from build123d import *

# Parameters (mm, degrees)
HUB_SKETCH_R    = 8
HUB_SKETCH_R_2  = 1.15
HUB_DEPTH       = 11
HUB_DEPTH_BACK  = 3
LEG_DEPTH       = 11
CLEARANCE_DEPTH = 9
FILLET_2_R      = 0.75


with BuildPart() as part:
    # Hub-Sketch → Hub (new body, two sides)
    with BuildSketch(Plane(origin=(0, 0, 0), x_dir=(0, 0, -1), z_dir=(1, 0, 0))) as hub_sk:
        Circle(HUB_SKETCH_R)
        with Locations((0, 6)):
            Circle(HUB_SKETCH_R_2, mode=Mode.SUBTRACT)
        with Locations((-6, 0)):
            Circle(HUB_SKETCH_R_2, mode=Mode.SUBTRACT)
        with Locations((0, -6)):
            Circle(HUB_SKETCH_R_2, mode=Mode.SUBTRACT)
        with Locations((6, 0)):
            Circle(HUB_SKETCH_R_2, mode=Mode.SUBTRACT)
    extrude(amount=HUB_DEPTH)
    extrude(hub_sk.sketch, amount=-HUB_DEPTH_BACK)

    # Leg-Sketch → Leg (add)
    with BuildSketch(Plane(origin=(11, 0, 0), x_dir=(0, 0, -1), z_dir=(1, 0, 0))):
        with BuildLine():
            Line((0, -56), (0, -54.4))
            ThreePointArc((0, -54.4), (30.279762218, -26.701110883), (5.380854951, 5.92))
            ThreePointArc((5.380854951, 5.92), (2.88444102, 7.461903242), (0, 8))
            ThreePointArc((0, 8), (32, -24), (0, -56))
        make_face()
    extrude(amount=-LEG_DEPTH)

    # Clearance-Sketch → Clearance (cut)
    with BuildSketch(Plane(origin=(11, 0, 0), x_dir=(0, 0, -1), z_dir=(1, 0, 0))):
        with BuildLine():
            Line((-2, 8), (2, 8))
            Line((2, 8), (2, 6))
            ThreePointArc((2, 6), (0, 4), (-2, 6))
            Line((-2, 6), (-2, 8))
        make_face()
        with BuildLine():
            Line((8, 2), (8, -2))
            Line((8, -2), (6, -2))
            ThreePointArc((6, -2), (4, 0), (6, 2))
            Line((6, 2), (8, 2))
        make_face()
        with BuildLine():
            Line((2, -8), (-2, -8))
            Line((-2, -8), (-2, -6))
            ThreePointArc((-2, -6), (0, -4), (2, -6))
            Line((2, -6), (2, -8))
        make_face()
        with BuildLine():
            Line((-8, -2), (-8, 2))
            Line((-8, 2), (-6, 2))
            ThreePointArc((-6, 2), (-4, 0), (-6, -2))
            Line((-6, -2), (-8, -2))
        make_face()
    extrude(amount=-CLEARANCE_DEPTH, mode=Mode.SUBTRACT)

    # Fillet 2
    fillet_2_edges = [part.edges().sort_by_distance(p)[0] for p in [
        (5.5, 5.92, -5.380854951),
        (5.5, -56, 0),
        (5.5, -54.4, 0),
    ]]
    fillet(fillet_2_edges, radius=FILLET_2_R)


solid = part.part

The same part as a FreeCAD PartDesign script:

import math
import FreeCAD as App
import Part
import Sketcher
from FreeCAD import Vector
Q = App.Units.Quantity


def edges_at(feature, points):
    """Names of the edges that pass closest to the given points."""
    edges = feature.Shape.Edges
    near = lambda p: min(range(len(edges)), key=lambda i: edges[i].distToShape(Part.Vertex(*p))[0])
    return sorted({f"Edge{near(p) + 1}" for p in points})

doc = App.newDocument("Part")
params = doc.addObject("Spreadsheet::Sheet", "Params")
for row, (alias, value) in enumerate([
    ("sketch1_diameter", "16 mm"),
    ("sketch1_diameter2", "2.3 mm"),
    ("pad1_length", "11 mm"),
    ("pad1_length2", "3 mm"),
    ("sketch2_radius", "32 mm"),
    ("sketch2_radius2", "8 mm"),
    ("sketch2_radius3", "30.4 mm"),
    ("pad2_length", "11 mm"),
    ("sketch3_radius", "2 mm"),
    ("sketch3_width", "2 mm"),
    ("pocket1_length", "9 mm"),
    ("fillet_radius", "0.75 mm"),
], start=1):
    params.set(f"A{row}", alias)
    params.set(f"B{row}", "=" + value)
    params.setAlias(f"B{row}", alias)

body = doc.addObject("PartDesign::Body", "Body")

# Sketch on YZ plane
sketch1 = body.newObject("Sketcher::SketchObject", "Sketch")
sketch1.AttachmentSupport = (doc.getObject("YZ_Plane"), [""])
sketch1.MapMode = "FlatFace"
sketch1.addGeometry(Part.Circle(Vector(0, 0, 0), Vector(0, 0, 1), 8), False)
sketch1.addGeometry(Part.Circle(Vector(-6, 0, 0), Vector(0, 0, 1), 1.15), False)
sketch1.addGeometry(Part.Circle(Vector(0, 6, 0), Vector(0, 0, 1), 1.15), False)
sketch1.addGeometry(Part.Circle(Vector(6, 0, 0), Vector(0, 0, 1), 1.15), False)
sketch1.addGeometry(Part.Circle(Vector(0, -6, 0), Vector(0, 0, 1), 1.15), False)
sketch1.addConstraint(Sketcher.Constraint("Coincident", 0, 3, -1, 1))
sketch1.addConstraint(Sketcher.Constraint("Equal", 1, 2))
sketch1.addConstraint(Sketcher.Constraint("Equal", 2, 3))
sketch1.addConstraint(Sketcher.Constraint("Equal", 3, 4))
sketch1.addConstraint(Sketcher.Constraint("Symmetric", 1, 3, 3, 3, -1, 1))
sketch1.addConstraint(Sketcher.Constraint("Symmetric", 2, 3, 4, 3, -1, 1))
sketch1.addConstraint(Sketcher.Constraint("PointOnObject", 1, 3, -1))
sketch1.addConstraint(Sketcher.Constraint("PointOnObject", 2, 3, -2))
sketch1.addConstraint(Sketcher.Constraint("Diameter", 0, Q("16 mm")))
sketch1.addConstraint(Sketcher.Constraint("Diameter", 1, Q("2.3 mm")))
sketch1.addConstraint(Sketcher.Constraint("DistanceX", 1, 3, -1, 1, Q("6 mm")))
sketch1.addConstraint(Sketcher.Constraint("DistanceY", -1, 1, 2, 3, Q("6 mm")))
sketch1.setExpression("Constraints[8]", "Params.sketch1_diameter")
sketch1.setExpression("Constraints[9]", "Params.sketch1_diameter2")
pad1 = body.newObject("PartDesign::Pad", "Pad")
pad1.Profile = sketch1
pad1.Type = "TwoLengths"
pad1.setExpression("Length", "Params.pad1_length")
pad1.setExpression("Length2", "Params.pad1_length2")

# Sketch on YZ plane
sketch2 = body.newObject("Sketcher::SketchObject", "Sketch001")
sketch2.AttachmentSupport = (doc.getObject("YZ_Plane"), [""])
sketch2.MapMode = "FlatFace"
sketch2.AttachmentOffset = App.Placement(Vector(0, 0, 11), App.Rotation())
sketch2.addGeometry(Part.LineSegment(Vector(-54.4, 0, 0), Vector(-56, 0, 0)), False)
sketch2.addGeometry(Part.ArcOfCircle(Part.Circle(Vector(-24, 0, 0), Vector(0, 0, 1), 32), math.radians(180), math.radians(360)), False)
sketch2.addGeometry(Part.ArcOfCircle(Part.Circle(Vector(0, 0, 0), Vector(0, 0, 1), 8), math.radians(-42.268584), math.radians(0)), False)
sketch2.addGeometry(Part.ArcOfCircle(Part.Circle(Vector(-24, 0, 0), Vector(0, 0, 1), 30.4), math.radians(180), math.radians(349.804828)), False)
sketch2.addConstraint(Sketcher.Constraint("Coincident", 0, 2, 1, 1))
sketch2.addConstraint(Sketcher.Constraint("Tangent", 1, 2, 2, 2))
sketch2.addConstraint(Sketcher.Constraint("Coincident", 2, 1, 3, 2))
sketch2.addConstraint(Sketcher.Constraint("Coincident", 3, 1, 0, 1))
sketch2.addConstraint(Sketcher.Constraint("Horizontal", 0))
sketch2.addConstraint(Sketcher.Constraint("Coincident", 2, 3, -1, 1))
sketch2.addConstraint(Sketcher.Constraint("Coincident", 3, 3, 1, 3))
sketch2.addConstraint(Sketcher.Constraint("PointOnObject", 1, 3, -1))
sketch2.addConstraint(Sketcher.Constraint("PointOnObject", 0, 2, -1))
sketch2.addConstraint(Sketcher.Constraint("Radius", 1, Q("32 mm")))
sketch2.addConstraint(Sketcher.Constraint("Radius", 2, Q("8 mm")))
sketch2.addConstraint(Sketcher.Constraint("Radius", 3, Q("30.4 mm")))
sketch2.setExpression("Constraints[9]", "Params.sketch2_radius")
sketch2.setExpression("Constraints[10]", "Params.sketch2_radius2")
sketch2.setExpression("Constraints[11]", "Params.sketch2_radius3")
pad2 = body.newObject("PartDesign::Pad", "Pad001")
pad2.Profile = sketch2
pad2.setExpression("Length", "Params.pad2_length")
pad2.Reversed = True

# Sketch on YZ plane
sketch3 = body.newObject("Sketcher::SketchObject", "Sketch002")
sketch3.AttachmentSupport = (doc.getObject("YZ_Plane"), [""])
sketch3.MapMode = "FlatFace"
sketch3.AttachmentOffset = App.Placement(Vector(0, 0, 11), App.Rotation())
sketch3.addGeometry(Part.LineSegment(Vector(8, -2, 0), Vector(8, 2, 0)), False)
sketch3.addGeometry(Part.LineSegment(Vector(8, 2, 0), Vector(6, 2, 0)), False)
sketch3.addGeometry(Part.ArcOfCircle(Part.Circle(Vector(6, 0, 0), Vector(0, 0, 1), 2), math.radians(90), math.radians(270)), False)
sketch3.addGeometry(Part.LineSegment(Vector(6, -2, 0), Vector(8, -2, 0)), False)
sketch3.addGeometry(Part.LineSegment(Vector(-2, -8, 0), Vector(2, -8, 0)), False)
sketch3.addGeometry(Part.LineSegment(Vector(2, -8, 0), Vector(2, -6, 0)), False)
sketch3.addGeometry(Part.ArcOfCircle(Part.Circle(Vector(0, -6, 0), Vector(0, 0, 1), 2), math.radians(0), math.radians(180)), False)
sketch3.addGeometry(Part.LineSegment(Vector(-2, -6, 0), Vector(-2, -8, 0)), False)
sketch3.addGeometry(Part.LineSegment(Vector(-8, 2, 0), Vector(-8, -2, 0)), False)
sketch3.addGeometry(Part.LineSegment(Vector(-8, -2, 0), Vector(-6, -2, 0)), False)
sketch3.addGeometry(Part.ArcOfCircle(Part.Circle(Vector(-6, 0, 0), Vector(0, 0, 1), 2), math.radians(-90), math.radians(90)), False)
sketch3.addGeometry(Part.LineSegment(Vector(-6, 2, 0), Vector(-8, 2, 0)), False)
sketch3.addGeometry(Part.LineSegment(Vector(2, 8, 0), Vector(-2, 8, 0)), False)
sketch3.addGeometry(Part.LineSegment(Vector(-2, 8, 0), Vector(-2, 6, 0)), False)
sketch3.addGeometry(Part.ArcOfCircle(Part.Circle(Vector(0, 6, 0), Vector(0, 0, 1), 2), math.radians(180), math.radians(360)), False)
sketch3.addGeometry(Part.LineSegment(Vector(2, 6, 0), Vector(2, 8, 0)), False)
sketch3.addConstraint(Sketcher.Constraint("Coincident", 0, 2, 1, 1))
sketch3.addConstraint(Sketcher.Constraint("Tangent", 1, 2, 2, 1))
sketch3.addConstraint(Sketcher.Constraint("Tangent", 2, 2, 3, 1))
sketch3.addConstraint(Sketcher.Constraint("Coincident", 3, 2, 0, 1))
sketch3.addConstraint(Sketcher.Constraint("Coincident", 4, 2, 5, 1))
sketch3.addConstraint(Sketcher.Constraint("Tangent", 5, 2, 6, 1))
sketch3.addConstraint(Sketcher.Constraint("Tangent", 6, 2, 7, 1))
sketch3.addConstraint(Sketcher.Constraint("Coincident", 7, 2, 4, 1))
sketch3.addConstraint(Sketcher.Constraint("Coincident", 8, 2, 9, 1))
sketch3.addConstraint(Sketcher.Constraint("Tangent", 9, 2, 10, 1))
sketch3.addConstraint(Sketcher.Constraint("Tangent", 10, 2, 11, 1))
sketch3.addConstraint(Sketcher.Constraint("Coincident", 11, 2, 8, 1))
sketch3.addConstraint(Sketcher.Constraint("Coincident", 12, 2, 13, 1))
sketch3.addConstraint(Sketcher.Constraint("Tangent", 13, 2, 14, 1))
sketch3.addConstraint(Sketcher.Constraint("Tangent", 14, 2, 15, 1))
sketch3.addConstraint(Sketcher.Constraint("Coincident", 15, 2, 12, 1))
sketch3.addConstraint(Sketcher.Constraint("Vertical", 0))
sketch3.addConstraint(Sketcher.Constraint("Horizontal", 1))
sketch3.addConstraint(Sketcher.Constraint("Horizontal", 3))
sketch3.addConstraint(Sketcher.Constraint("Horizontal", 4))
sketch3.addConstraint(Sketcher.Constraint("Vertical", 5))
sketch3.addConstraint(Sketcher.Constraint("Vertical", 7))
sketch3.addConstraint(Sketcher.Constraint("Vertical", 8))
sketch3.addConstraint(Sketcher.Constraint("Horizontal", 9))
sketch3.addConstraint(Sketcher.Constraint("Horizontal", 11))
sketch3.addConstraint(Sketcher.Constraint("Horizontal", 12))
sketch3.addConstraint(Sketcher.Constraint("Vertical", 13))
sketch3.addConstraint(Sketcher.Constraint("Vertical", 15))
sketch3.addConstraint(Sketcher.Constraint("Equal", 2, 6))
sketch3.addConstraint(Sketcher.Constraint("Equal", 6, 10))
sketch3.addConstraint(Sketcher.Constraint("Equal", 10, 14))
sketch3.addConstraint(Sketcher.Constraint("Symmetric", 2, 3, 10, 3, -1, 1))
sketch3.addConstraint(Sketcher.Constraint("Symmetric", 6, 3, 14, 3, -1, 1))
sketch3.addConstraint(Sketcher.Constraint("Symmetric", 3, 2, 8, 2, -2))
sketch3.addConstraint(Sketcher.Constraint("Symmetric", 7, 2, 12, 2, -1))
sketch3.addConstraint(Sketcher.Constraint("Equal", 11, 5))
sketch3.addConstraint(Sketcher.Constraint("Radius", 2, Q("2 mm")))
sketch3.addConstraint(Sketcher.Constraint("DistanceX", 1, 2, 1, 1, Q("2 mm")))
sketch3.addConstraint(Sketcher.Constraint("DistanceX", -1, 1, 2, 3, Q("6 mm")))
sketch3.addConstraint(Sketcher.Constraint("DistanceY", 6, 3, -1, 1, Q("6 mm")))
sketch3.setExpression("Constraints[36]", "Params.sketch3_radius")
sketch3.setExpression("Constraints[37]", "Params.sketch3_width")
pocket1 = body.newObject("PartDesign::Pocket", "Pocket")
pocket1.Profile = sketch3
pocket1.setExpression("Length", "Params.pocket1_length")
doc.recompute()

fillet = body.newObject("PartDesign::Fillet", "Fillet")
fillet.Base = (pocket1, edges_at(pocket1, [(5.5, 5.92, -5.381), (5.5, -56, 0), (5.5, -54.4, 0)]))
fillet.setExpression("Radius", "Params.fillet_radius")

doc.recompute()
